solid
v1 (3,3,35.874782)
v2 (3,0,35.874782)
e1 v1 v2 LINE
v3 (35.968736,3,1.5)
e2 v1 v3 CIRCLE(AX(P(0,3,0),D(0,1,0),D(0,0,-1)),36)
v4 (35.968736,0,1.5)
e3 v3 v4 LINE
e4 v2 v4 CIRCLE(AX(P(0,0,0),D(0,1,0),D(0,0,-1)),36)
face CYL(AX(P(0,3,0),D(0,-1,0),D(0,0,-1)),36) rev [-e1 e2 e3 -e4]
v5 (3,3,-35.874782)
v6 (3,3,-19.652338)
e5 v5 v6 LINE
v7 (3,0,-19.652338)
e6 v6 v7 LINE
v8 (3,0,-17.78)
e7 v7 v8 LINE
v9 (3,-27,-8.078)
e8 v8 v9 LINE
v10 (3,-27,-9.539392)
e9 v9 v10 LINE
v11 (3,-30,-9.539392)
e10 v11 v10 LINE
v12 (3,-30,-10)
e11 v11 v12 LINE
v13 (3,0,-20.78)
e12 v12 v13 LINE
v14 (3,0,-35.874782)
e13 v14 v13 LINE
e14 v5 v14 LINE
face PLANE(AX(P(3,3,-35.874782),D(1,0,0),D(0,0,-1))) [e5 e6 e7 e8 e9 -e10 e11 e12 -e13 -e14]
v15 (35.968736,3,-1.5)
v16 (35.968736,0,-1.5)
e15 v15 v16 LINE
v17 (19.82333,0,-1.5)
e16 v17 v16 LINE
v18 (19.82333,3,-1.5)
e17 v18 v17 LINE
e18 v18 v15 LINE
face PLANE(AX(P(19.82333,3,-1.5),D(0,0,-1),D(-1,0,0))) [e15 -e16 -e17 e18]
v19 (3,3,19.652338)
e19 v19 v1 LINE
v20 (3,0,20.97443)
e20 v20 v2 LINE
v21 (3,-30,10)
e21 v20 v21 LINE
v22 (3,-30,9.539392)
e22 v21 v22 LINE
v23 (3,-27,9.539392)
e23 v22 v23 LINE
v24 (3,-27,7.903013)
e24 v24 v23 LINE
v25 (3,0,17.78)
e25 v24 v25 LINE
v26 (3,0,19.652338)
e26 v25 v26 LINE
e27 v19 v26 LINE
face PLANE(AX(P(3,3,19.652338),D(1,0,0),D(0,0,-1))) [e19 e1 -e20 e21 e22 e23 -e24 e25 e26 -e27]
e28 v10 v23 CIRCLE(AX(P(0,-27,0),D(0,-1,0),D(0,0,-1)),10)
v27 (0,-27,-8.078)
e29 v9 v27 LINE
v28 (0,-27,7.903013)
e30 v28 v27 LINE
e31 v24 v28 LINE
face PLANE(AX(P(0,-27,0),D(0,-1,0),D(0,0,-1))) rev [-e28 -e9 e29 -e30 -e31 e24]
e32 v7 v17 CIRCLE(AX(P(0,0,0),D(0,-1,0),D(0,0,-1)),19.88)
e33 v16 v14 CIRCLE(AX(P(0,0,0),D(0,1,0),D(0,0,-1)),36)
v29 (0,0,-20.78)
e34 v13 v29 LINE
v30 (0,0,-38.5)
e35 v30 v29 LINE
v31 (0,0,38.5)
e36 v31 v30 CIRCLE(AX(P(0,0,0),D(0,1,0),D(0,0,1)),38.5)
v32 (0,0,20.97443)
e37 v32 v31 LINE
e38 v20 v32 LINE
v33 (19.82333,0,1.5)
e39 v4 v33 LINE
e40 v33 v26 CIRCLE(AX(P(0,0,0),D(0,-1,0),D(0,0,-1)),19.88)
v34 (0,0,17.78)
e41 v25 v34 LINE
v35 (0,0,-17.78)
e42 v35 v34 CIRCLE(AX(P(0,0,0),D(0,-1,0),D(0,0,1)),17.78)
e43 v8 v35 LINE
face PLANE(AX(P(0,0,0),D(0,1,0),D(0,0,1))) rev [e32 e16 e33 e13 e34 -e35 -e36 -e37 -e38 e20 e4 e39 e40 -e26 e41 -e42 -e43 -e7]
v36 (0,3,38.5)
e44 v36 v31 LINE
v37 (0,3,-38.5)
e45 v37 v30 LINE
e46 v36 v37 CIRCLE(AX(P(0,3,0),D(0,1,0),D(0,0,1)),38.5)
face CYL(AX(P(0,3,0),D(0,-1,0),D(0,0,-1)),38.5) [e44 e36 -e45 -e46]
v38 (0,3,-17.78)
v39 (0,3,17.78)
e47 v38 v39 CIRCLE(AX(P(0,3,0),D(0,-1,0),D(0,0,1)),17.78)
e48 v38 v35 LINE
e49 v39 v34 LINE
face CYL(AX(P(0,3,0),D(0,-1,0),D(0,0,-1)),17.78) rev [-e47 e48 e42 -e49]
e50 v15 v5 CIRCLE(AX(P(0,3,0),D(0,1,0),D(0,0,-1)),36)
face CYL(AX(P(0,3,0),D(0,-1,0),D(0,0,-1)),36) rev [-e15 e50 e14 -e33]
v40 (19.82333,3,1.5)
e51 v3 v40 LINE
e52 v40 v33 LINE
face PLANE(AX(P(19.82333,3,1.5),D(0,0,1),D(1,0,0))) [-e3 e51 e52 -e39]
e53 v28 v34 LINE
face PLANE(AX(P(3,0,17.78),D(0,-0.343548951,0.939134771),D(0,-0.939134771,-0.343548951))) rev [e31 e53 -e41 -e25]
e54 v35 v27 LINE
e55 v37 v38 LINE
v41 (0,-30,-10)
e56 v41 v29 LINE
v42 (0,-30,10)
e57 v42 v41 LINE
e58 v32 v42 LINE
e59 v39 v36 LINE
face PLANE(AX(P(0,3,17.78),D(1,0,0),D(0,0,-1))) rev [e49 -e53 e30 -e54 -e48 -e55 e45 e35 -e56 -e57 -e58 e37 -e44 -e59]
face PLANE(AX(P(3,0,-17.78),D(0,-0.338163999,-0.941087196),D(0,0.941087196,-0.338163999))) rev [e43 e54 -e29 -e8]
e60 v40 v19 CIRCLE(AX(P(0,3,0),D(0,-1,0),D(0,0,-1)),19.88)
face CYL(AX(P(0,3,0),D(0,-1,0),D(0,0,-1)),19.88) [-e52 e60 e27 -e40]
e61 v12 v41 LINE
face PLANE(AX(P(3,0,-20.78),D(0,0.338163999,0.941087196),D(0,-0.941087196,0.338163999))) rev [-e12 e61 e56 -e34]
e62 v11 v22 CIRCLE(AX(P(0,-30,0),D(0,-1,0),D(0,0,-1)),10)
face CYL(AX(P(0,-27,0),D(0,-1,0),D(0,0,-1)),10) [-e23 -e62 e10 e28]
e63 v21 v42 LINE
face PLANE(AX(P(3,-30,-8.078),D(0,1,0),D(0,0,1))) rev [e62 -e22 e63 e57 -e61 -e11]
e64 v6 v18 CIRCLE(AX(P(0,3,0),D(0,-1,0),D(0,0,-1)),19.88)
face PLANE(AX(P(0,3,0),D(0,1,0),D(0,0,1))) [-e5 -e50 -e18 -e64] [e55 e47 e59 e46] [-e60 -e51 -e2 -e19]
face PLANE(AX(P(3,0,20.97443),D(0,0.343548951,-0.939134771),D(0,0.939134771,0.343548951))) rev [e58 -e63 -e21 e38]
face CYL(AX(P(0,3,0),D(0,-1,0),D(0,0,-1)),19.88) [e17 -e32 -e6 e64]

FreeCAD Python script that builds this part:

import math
import FreeCAD as App
import Part
import Sketcher

V = App.Vector
Q = App.Units.Quantity


def add_polygon(sketch, points):
    """Adds a closed chain of lines whose ends are joined by coincident constraints."""
    first, n = sketch.GeometryCount, len(points)
    for a, b in zip(points, points[1:] + points[:1]):
        sketch.addGeometry(Part.LineSegment(App.Vector(*a, 0), App.Vector(*b, 0)), False)
    for i in range(n):
        sketch.addConstraint(Sketcher.Constraint("Coincident", first + i, 2, first + (i + 1) % n, 1))

doc = App.newDocument("Part")
body = doc.addObject("PartDesign::Body", "Body")

sketch1 = doc.addObject("Sketcher::SketchObject", "Sketch")
body.addObject(sketch1)
sketch1.AttachmentSupport = (doc.XZ_Plane, [""])
sketch1.MapMode = "FlatFace"
sketch1.addGeometry(Part.LineSegment(V(0, 18, 0), V(0, 38, 0)), False)
sketch1.addGeometry(Part.ArcOfCircle(Part.Circle(V(0, 0, 0), V(0, 0, 1), 38), math.radians(-90), math.radians(90)), False)
sketch1.addGeometry(Part.LineSegment(V(0, -38, 0), V(0, -18, 0)), False)
sketch1.addGeometry(Part.ArcOfCircle(Part.Circle(V(0, 0, 0), V(0, 0, 1), 18), math.radians(-90), math.radians(90)), False)
sketch1.addGeometry(Part.LineSegment(V(3, 36, 0), V(3, 20, 0)), False)
sketch1.addGeometry(Part.ArcOfCircle(Part.Circle(V(0, 0, 0), V(0, 0, 1), 20), math.radians(4), math.radians(81)), False)
sketch1.addGeometry(Part.LineSegment(V(20, 2, 0), V(36, 2, 0)), False)
sketch1.addGeometry(Part.ArcOfCircle(Part.Circle(V(0, 0, 0), V(0, 0, 1), 36), math.radians(2), math.radians(85)), False)
sketch1.addGeometry(Part.LineSegment(V(3, -20, 0), V(3, -36, 0)), False)
sketch1.addGeometry(Part.ArcOfCircle(Part.Circle(V(0, 0, 0), V(0, 0, 1), 36), math.radians(-85), math.radians(-2)), False)
sketch1.addGeometry(Part.LineSegment(V(36, -2, 0), V(20, -2, 0)), False)
sketch1.addGeometry(Part.ArcOfCircle(Part.Circle(V(0, 0, 0), V(0, 0, 1), 20), math.radians(-81), math.radians(-4)), False)
sketch1.addConstraint(Sketcher.Constraint("Coincident", 0, 2, 1, 2))
sketch1.addConstraint(Sketcher.Constraint("Coincident", 1, 1, 2, 1))
sketch1.addConstraint(Sketcher.Constraint("Coincident", 2, 2, 3, 1))
sketch1.addConstraint(Sketcher.Constraint("Coincident", 3, 2, 0, 1))
sketch1.addConstraint(Sketcher.Constraint("Coincident", 4, 2, 5, 2))
sketch1.addConstraint(Sketcher.Constraint("Coincident", 5, 1, 6, 1))
sketch1.addConstraint(Sketcher.Constraint("Coincident", 6, 2, 7, 1))
sketch1.addConstraint(Sketcher.Constraint("Coincident", 7, 2, 4, 1))
sketch1.addConstraint(Sketcher.Constraint("Coincident", 8, 2, 9, 1))
sketch1.addConstraint(Sketcher.Constraint("Coincident", 9, 2, 10, 1))
sketch1.addConstraint(Sketcher.Constraint("Coincident", 10, 2, 11, 2))
sketch1.addConstraint(Sketcher.Constraint("Coincident", 11, 1, 8, 1))
sketch1.addConstraint(Sketcher.Constraint("Vertical", 0))
sketch1.addConstraint(Sketcher.Constraint("Vertical", 2))
sketch1.addConstraint(Sketcher.Constraint("Vertical", 4))
sketch1.addConstraint(Sketcher.Constraint("Horizontal", 6))
sketch1.addConstraint(Sketcher.Constraint("Vertical", 8))
sketch1.addConstraint(Sketcher.Constraint("Horizontal", 10))
sketch1.addConstraint(Sketcher.Constraint("Coincident", 1, 3, -1, 1))
sketch1.addConstraint(Sketcher.Constraint("Coincident", 3, 3, -1, 1))
sketch1.addConstraint(Sketcher.Constraint("Coincident", 5, 3, -1, 1))
sketch1.addConstraint(Sketcher.Constraint("Coincident", 7, 3, -1, 1))
sketch1.addConstraint(Sketcher.Constraint("Coincident", 9, 3, -1, 1))
sketch1.addConstraint(Sketcher.Constraint("Coincident", 11, 3, -1, 1))
sketch1.addConstraint(Sketcher.Constraint("Equal", 7, 9))
sketch1.addConstraint(Sketcher.Constraint("Equal", 5, 11))
sketch1.addConstraint(Sketcher.Constraint("PointOnObject", 0, 2, -2))
sketch1.addConstraint(Sketcher.Constraint("PointOnObject", 1, 1, -2))
sketch1.addConstraint(Sketcher.Constraint("Vertical", 7, 2, 8, 2))
sketch1.addConstraint(Sketcher.Constraint("Vertical", 6, 2, 9, 2))
sketch1.addConstraint(Sketcher.Constraint("Radius", 7, Q("36 mm")))
sketch1.addConstraint(Sketcher.Constraint("Radius", 1, Q("38.5 mm")))
sketch1.addConstraint(Sketcher.Constraint("Radius", 3, Q("17.78 mm")))
sketch1.addConstraint(Sketcher.Constraint("Radius", 5, Q("19.88 mm")))
sketch1.addConstraint(Sketcher.Constraint("DistanceX", -1, 1, 4, 2, Q("3 mm")))
sketch1.addConstraint(Sketcher.Constraint("DistanceY", 9, 2, 6, 2, Q("3 mm")))
pad1 = doc.addObject("PartDesign::Pad", "Pad")
body.addObject(pad1)
pad1.Profile = sketch1
pad1.Length = 3
pad1.Reversed = True
body2 = doc.addObject("PartDesign::Body", "Body001")

sketch2 = doc.addObject("Sketcher::SketchObject", "Sketch001")
body2.addObject(sketch2)
sketch2.AttachmentSupport = (doc.getObject("XZ_Plane001"), [""])
sketch2.MapMode = "FlatFace"
sketch2.AttachmentOffset = App.Placement(V(0, 0, 30), App.Rotation())
sketch2.addGeometry(Part.LineSegment(V(0, 10, 0), V(0, -10, 0)), False)
sketch2.addGeometry(Part.ArcOfCircle(Part.Circle(V(0, 0, 0), V(0, 0, 1), 10), math.radians(-90), math.radians(90)), False)
sketch2.addConstraint(Sketcher.Constraint("Coincident", 0, 1, 1, 2))
sketch2.addConstraint(Sketcher.Constraint("Coincident", 1, 1, 0, 2))
sketch2.addConstraint(Sketcher.Constraint("Vertical", 0))
sketch2.addConstraint(Sketcher.Constraint("Coincident", 1, 3, -1, 1))
sketch2.addConstraint(Sketcher.Constraint("PointOnObject", 0, 1, -2))
sketch2.addConstraint(Sketcher.Constraint("Radius", 1, Q("10 mm")))
pad2 = doc.addObject("PartDesign::Pad", "Pad001")
body2.addObject(pad2)
pad2.Profile = sketch2
pad2.Length = 3
pad2.Reversed = True
body.AllowCompound = True
doc.recompute()

boolean = doc.addObject("PartDesign::Boolean", "Boolean")
body.addObject(boolean)
boolean.Type = "Fuse"
boolean.addObjects([body2])

sketch3 = doc.addObject("Sketcher::SketchObject", "Sketch002")
body.addObject(sketch3)
sketch3.AttachmentSupport = (doc.YZ_Plane, [""])
sketch3.MapMode = "FlatFace"
add_polygon(sketch3, [(-30, -10), (0, -20.8), (0, -17.8), (-27, -8.1), (-30, -8.1)])
add_polygon(sketch3, [(0, 21), (-30, 10), (-30, 7.9), (-27, 7.9), (0, 17.8)])
sketch3.addConstraint(Sketcher.Constraint("Vertical", 1))
sketch3.addConstraint(Sketcher.Constraint("Horizontal", 3))
sketch3.addConstraint(Sketcher.Constraint("Vertical", 4))
sketch3.addConstraint(Sketcher.Constraint("Vertical", 6))
sketch3.addConstraint(Sketcher.Constraint("Horizontal", 7))
sketch3.addConstraint(Sketcher.Constraint("Vertical", 9))
sketch3.addConstraint(Sketcher.Constraint("Symmetric", 1, 2, 8, 2, -1, 1))
sketch3.addConstraint(Sketcher.Constraint("Symmetric", 4, 2, 5, 2, -1))
sketch3.addConstraint(Sketcher.Constraint("PointOnObject", 0, 2, -2))
sketch3.addConstraint(Sketcher.Constraint("Parallel", 0, 2))
sketch3.addConstraint(Sketcher.Constraint("Parallel", 5, 8))
sketch3.addConstraint(Sketcher.Constraint("Vertical", 2, 2, 7, 2))
sketch3.addConstraint(Sketcher.Constraint("Equal", 7, 1))
sketch3.addConstraint(Sketcher.Constraint("DistanceX", 3, 2, 3, 1, Q("3 mm")))
sketch3.addConstraint(Sketcher.Constraint("DistanceX", 2, 2, -1, 1, Q("27 mm")))
sketch3.addConstraint(Sketcher.Constraint("DistanceY", 4, 2, -1, 1, Q("10 mm")))
sketch3.addConstraint(Sketcher.Constraint("DistanceY", 4, 2, 4, 1, Q("1.922 mm")))
sketch3.addConstraint(Sketcher.Constraint("DistanceY", 9, 1, 9, 2, Q("3.19443 mm")))
pad3 = doc.addObject("PartDesign::Pad", "Pad002")
body.addObject(pad3)
pad3.Profile = sketch3
pad3.Length = 3

doc.recompute()
